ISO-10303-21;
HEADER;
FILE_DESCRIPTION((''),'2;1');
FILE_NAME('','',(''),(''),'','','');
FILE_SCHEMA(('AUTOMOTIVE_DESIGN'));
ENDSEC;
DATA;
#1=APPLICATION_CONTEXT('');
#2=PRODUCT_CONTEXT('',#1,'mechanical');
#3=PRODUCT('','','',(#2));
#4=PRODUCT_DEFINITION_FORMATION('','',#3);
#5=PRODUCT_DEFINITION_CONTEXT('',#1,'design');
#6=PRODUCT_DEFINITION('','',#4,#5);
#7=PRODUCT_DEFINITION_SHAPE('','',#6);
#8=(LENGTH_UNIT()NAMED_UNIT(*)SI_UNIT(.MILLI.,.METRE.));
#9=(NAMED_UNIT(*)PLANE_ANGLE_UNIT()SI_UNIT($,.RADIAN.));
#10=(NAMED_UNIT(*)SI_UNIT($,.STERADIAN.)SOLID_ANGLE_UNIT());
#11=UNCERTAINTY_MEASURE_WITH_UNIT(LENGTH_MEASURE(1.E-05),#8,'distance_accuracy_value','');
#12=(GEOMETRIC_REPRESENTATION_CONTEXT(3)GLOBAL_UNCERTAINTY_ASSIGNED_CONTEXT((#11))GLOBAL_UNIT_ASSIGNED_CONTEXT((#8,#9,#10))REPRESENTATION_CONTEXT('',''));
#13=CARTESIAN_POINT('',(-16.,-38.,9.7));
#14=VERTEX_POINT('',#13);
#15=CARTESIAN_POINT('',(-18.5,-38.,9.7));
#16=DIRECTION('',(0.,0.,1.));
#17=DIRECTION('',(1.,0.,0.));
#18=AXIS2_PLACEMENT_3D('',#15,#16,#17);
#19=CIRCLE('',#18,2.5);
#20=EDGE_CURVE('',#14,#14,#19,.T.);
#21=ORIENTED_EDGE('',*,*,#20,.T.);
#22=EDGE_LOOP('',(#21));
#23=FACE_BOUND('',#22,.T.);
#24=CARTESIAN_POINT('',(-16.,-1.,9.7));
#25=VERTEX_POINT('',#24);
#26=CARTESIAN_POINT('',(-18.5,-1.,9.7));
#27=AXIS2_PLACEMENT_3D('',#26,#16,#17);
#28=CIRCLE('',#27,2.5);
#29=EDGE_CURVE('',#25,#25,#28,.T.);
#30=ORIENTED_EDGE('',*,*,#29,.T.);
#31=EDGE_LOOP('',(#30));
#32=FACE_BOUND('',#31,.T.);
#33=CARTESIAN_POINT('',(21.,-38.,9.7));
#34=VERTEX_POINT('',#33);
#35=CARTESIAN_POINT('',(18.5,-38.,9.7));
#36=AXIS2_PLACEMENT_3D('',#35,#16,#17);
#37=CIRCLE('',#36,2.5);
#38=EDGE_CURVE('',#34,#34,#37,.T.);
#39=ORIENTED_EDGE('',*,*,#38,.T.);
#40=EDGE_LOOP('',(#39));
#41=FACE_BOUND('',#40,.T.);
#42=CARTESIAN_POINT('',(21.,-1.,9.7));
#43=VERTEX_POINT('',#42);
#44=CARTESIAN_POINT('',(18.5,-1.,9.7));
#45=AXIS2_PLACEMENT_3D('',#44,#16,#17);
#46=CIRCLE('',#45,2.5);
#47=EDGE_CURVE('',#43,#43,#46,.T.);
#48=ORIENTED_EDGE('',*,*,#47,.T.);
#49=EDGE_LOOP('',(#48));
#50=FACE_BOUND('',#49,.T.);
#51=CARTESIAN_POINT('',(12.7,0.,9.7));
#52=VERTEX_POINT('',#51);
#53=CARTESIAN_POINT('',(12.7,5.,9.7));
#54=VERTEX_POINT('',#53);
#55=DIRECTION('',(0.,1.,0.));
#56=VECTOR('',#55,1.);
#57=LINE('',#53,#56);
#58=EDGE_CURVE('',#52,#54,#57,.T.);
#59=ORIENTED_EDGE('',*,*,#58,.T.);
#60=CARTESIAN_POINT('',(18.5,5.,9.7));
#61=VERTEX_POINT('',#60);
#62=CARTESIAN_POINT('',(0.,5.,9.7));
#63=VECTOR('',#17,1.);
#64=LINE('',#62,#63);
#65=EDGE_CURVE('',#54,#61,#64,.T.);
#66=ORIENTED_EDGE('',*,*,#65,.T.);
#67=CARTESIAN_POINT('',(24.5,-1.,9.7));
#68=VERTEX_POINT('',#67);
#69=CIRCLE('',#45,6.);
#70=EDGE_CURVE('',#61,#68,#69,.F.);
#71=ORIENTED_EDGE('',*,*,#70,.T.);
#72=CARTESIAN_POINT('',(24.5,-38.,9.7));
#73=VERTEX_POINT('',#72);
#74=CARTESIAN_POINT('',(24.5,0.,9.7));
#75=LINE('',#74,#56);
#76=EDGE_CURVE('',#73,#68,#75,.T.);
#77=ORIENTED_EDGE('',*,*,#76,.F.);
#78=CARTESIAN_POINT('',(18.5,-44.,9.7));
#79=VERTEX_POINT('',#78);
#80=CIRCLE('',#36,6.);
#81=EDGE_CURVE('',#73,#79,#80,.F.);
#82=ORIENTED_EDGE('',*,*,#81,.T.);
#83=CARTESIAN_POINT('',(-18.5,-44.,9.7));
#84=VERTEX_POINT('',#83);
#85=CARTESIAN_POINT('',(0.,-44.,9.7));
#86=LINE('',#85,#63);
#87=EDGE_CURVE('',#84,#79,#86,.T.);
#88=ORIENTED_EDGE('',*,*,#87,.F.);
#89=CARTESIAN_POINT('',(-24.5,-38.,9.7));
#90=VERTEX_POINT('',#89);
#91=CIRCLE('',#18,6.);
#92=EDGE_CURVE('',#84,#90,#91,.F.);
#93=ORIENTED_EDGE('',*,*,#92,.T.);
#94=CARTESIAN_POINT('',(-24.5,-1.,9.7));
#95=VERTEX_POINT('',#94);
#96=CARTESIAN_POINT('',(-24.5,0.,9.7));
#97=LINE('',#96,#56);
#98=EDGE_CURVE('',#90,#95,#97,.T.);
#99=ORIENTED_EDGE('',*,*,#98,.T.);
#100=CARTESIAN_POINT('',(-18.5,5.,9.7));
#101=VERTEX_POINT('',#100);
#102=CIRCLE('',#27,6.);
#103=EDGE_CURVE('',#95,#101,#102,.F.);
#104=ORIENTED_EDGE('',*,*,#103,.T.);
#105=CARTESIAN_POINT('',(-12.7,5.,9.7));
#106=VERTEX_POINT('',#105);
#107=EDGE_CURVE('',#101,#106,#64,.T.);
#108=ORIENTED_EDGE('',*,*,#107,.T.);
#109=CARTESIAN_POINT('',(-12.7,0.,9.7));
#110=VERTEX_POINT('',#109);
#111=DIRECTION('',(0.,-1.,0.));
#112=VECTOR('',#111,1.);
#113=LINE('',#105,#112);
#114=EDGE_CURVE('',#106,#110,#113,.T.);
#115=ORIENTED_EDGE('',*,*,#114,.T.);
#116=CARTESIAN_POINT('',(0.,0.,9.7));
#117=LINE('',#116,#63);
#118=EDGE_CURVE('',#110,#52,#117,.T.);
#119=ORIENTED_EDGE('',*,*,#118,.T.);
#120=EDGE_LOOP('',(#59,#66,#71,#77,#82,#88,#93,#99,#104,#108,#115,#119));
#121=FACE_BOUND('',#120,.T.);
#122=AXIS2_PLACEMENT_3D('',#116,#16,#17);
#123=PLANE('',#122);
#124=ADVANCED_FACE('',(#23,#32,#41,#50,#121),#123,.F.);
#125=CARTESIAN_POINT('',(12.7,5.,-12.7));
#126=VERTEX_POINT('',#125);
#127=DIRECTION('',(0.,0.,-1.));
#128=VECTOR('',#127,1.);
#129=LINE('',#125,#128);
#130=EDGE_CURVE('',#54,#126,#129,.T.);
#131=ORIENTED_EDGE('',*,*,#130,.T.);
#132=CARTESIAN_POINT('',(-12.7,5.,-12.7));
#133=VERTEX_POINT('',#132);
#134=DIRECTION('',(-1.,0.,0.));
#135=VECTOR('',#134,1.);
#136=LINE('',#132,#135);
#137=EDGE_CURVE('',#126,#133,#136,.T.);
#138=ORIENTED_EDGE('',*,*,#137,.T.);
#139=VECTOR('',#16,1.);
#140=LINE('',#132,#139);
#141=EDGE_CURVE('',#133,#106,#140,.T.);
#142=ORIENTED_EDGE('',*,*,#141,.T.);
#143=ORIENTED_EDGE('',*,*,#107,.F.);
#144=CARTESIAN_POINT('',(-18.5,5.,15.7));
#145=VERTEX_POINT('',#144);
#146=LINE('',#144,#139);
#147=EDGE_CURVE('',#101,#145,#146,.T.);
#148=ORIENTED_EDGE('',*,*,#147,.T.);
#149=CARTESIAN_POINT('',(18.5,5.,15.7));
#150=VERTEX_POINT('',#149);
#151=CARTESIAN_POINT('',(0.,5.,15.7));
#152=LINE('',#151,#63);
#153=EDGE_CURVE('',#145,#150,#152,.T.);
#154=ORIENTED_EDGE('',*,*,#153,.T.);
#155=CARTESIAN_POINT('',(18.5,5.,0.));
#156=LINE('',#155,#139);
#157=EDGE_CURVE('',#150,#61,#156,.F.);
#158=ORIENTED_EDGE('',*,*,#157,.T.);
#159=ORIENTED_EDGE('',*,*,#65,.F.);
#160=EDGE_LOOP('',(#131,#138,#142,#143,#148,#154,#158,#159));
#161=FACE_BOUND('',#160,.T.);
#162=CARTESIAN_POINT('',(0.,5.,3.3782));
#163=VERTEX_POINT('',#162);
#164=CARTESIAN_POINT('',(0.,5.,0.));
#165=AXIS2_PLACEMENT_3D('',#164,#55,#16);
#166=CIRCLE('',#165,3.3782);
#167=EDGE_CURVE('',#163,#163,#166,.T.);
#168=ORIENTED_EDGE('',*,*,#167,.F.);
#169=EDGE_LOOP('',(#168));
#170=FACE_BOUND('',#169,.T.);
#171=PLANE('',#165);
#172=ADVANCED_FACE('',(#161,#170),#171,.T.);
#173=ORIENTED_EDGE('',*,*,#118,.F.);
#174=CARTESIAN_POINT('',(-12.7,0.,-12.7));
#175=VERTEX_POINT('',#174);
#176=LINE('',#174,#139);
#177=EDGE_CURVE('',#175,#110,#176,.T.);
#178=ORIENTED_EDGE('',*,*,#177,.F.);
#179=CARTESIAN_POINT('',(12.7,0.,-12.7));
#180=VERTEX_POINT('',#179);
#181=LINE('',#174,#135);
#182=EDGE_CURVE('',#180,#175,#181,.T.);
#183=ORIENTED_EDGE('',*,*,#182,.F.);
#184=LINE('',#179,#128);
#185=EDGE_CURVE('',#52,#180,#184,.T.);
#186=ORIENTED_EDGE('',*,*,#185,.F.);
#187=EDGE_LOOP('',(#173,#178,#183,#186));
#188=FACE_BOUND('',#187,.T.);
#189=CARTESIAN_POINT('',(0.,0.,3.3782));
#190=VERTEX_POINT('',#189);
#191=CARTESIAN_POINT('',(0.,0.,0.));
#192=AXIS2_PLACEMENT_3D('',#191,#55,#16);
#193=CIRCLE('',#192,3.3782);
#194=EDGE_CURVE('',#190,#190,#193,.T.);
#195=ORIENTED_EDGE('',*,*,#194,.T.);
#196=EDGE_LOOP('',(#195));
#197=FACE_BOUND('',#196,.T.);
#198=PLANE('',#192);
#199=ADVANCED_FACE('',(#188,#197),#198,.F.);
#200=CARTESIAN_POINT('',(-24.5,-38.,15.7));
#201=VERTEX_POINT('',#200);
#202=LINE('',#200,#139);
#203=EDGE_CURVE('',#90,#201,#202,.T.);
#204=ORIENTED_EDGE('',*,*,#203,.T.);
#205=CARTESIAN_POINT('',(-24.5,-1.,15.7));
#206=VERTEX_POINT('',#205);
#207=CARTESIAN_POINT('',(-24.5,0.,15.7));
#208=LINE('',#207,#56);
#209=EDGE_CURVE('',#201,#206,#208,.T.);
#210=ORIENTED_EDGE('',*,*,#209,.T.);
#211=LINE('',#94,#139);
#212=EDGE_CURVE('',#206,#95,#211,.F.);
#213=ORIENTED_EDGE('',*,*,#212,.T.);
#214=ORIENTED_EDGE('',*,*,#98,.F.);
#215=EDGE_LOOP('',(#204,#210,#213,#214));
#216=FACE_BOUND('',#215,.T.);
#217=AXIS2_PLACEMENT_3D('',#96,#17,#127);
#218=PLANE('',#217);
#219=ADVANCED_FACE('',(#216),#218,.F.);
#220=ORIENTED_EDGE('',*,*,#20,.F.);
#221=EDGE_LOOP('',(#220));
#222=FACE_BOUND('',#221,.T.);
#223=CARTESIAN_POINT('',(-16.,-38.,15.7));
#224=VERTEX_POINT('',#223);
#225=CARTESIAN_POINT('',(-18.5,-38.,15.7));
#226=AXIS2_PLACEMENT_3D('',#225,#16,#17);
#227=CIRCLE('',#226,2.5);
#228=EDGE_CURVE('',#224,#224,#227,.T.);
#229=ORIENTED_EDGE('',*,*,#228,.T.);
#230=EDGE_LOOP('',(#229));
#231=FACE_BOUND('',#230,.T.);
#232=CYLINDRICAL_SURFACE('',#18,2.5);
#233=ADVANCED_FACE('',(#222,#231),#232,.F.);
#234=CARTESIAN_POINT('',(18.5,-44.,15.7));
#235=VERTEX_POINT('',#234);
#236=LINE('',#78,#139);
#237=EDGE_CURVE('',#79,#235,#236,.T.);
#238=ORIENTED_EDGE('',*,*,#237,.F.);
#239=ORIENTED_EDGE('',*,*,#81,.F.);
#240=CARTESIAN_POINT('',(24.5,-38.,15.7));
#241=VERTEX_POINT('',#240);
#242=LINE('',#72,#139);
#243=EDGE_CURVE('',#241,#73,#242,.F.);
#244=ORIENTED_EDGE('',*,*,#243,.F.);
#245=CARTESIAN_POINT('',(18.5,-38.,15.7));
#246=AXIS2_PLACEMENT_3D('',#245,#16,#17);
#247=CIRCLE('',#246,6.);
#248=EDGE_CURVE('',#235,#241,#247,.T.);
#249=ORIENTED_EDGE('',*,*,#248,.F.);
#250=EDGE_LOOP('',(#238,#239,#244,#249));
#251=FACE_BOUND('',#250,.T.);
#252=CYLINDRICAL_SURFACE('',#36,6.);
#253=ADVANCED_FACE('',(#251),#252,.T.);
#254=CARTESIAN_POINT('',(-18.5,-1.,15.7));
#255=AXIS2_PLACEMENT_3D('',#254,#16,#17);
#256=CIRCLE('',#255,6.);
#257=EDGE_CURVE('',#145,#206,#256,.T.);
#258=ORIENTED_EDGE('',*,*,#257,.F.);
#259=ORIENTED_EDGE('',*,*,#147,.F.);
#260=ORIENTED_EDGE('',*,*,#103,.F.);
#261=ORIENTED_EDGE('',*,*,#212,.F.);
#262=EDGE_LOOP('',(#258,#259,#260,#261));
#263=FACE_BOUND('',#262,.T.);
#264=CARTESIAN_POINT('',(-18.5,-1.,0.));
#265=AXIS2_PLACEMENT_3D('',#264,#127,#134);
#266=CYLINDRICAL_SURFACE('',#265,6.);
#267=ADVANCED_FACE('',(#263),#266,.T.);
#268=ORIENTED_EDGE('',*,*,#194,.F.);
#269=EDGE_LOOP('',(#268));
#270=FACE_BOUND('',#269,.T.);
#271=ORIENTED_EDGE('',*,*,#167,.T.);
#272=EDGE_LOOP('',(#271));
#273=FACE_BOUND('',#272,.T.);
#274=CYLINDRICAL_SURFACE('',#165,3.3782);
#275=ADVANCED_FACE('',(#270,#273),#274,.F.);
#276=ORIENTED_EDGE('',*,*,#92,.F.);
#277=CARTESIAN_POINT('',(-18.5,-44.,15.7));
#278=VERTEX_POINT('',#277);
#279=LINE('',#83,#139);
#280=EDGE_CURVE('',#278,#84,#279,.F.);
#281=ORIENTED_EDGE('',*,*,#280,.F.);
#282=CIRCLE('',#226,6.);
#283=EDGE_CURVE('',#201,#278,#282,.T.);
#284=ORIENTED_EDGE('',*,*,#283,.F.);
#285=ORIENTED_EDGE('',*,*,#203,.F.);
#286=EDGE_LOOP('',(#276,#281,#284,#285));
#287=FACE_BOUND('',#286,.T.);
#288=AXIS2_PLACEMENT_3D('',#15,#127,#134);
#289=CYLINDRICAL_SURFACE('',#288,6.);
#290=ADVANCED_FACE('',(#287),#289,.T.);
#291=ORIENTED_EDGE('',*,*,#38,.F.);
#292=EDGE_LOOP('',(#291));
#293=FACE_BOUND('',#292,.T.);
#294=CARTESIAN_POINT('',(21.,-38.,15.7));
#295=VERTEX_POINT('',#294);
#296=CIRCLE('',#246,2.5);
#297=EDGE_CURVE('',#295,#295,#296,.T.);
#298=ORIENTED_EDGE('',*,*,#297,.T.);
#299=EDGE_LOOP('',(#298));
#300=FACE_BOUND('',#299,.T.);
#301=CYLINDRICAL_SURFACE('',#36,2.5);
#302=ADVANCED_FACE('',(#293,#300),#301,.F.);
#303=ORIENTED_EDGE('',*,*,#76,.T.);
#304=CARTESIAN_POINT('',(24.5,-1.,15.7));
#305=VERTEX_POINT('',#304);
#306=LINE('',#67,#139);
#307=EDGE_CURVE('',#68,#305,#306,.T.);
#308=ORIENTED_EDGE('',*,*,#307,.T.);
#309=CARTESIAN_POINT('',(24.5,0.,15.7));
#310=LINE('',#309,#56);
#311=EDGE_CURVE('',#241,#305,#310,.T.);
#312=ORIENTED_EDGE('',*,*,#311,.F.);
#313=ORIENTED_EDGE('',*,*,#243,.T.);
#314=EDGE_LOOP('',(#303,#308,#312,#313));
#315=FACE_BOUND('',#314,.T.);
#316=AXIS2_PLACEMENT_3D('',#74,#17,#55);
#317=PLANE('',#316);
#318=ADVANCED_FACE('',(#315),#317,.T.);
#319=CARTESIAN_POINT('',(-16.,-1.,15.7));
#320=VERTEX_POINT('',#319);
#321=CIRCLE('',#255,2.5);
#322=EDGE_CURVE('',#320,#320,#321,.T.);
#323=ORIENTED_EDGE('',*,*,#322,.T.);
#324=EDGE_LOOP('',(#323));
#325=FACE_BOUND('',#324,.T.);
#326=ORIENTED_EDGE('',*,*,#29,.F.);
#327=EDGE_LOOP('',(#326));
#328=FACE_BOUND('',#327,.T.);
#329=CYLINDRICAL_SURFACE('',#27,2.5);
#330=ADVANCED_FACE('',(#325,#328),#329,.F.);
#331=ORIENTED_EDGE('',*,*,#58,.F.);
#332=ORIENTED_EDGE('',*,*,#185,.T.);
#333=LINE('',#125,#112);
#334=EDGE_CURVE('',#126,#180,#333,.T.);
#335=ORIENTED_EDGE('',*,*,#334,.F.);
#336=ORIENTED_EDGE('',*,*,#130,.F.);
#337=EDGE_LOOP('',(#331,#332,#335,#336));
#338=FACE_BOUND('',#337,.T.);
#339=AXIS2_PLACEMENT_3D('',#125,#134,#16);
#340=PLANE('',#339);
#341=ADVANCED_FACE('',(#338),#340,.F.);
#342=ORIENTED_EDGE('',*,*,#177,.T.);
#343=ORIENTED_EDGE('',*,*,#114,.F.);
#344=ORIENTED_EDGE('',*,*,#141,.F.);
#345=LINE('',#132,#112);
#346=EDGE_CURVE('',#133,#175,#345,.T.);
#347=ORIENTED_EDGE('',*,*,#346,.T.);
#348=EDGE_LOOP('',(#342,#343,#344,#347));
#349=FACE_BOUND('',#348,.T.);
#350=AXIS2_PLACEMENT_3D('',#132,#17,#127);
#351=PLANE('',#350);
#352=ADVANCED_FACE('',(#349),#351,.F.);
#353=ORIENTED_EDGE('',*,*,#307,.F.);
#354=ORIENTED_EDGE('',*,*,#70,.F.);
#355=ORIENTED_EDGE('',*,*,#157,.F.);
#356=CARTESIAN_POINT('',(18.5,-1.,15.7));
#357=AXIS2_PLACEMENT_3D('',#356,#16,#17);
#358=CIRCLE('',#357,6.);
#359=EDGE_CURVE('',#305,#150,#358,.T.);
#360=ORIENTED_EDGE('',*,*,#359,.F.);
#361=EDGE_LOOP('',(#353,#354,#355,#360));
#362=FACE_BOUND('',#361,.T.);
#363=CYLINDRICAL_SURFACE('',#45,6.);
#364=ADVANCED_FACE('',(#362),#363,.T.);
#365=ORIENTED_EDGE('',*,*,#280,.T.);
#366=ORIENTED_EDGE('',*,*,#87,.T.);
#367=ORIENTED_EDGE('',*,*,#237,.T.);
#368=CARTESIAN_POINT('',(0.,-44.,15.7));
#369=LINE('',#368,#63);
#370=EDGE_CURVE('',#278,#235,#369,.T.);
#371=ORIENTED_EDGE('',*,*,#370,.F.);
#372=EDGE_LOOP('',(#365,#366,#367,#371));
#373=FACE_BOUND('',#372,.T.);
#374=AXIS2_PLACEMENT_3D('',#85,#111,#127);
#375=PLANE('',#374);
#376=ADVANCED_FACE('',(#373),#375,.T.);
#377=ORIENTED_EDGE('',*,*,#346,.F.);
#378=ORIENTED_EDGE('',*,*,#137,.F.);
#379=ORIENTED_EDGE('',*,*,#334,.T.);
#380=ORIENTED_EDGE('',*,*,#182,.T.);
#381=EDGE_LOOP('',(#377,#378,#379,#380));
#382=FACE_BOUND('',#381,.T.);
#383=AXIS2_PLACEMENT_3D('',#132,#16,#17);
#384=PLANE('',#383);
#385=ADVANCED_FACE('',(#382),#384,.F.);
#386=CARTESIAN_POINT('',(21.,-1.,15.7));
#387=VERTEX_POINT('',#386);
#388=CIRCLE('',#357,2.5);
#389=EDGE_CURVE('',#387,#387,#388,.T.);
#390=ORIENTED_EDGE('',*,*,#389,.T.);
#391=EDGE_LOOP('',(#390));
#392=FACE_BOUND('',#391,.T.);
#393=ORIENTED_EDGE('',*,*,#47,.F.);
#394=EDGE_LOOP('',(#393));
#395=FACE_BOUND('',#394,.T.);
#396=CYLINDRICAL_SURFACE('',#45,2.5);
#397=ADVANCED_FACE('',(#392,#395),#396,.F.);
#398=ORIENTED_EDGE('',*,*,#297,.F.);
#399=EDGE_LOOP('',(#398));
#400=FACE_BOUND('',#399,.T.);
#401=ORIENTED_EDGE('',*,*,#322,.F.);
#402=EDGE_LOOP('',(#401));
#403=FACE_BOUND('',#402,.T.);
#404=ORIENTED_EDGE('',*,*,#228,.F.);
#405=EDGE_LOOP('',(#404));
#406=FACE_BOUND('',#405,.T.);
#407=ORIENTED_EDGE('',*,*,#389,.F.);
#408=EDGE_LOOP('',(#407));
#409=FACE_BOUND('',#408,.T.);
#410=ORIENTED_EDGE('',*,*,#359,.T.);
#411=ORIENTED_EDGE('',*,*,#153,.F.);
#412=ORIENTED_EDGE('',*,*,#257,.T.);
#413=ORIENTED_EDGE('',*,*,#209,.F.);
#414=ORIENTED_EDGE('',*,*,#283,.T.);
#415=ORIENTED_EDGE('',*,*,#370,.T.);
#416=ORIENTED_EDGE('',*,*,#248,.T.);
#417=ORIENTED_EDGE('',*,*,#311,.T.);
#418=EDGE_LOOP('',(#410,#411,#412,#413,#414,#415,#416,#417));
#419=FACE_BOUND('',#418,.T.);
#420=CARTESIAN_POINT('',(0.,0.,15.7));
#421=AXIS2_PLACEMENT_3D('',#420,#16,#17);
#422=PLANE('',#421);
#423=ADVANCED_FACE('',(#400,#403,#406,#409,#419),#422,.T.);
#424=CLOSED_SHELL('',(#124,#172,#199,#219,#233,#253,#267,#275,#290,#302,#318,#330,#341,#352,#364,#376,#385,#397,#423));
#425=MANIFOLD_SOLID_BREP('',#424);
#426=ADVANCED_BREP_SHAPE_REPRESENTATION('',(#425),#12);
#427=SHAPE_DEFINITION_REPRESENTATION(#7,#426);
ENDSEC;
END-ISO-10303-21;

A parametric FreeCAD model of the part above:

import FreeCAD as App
import Part
import Sketcher
from FreeCAD import Vector


def edges_at(feature, points):
    """Names of the edges that pass closest to the given points."""
    edges = feature.Shape.Edges
    near = lambda p: min(range(len(edges)), key=lambda i: edges[i].distToShape(Part.Vertex(*p))[0])
    return sorted({f"Edge{near(p) + 1}" for p in points})


def add_polygon(sketch, points):
    """Adds a closed chain of lines whose ends are joined by coincident constraints."""
    first, n = sketch.GeometryCount, len(points)
    for a, b in zip(points, points[1:] + points[:1]):
        sketch.addGeometry(Part.LineSegment(App.Vector(*a, 0), App.Vector(*b, 0)), False)
    for i in range(n):
        sketch.addConstraint(Sketcher.Constraint("Coincident", first + i, 2, first + (i + 1) % n, 1))

doc = App.newDocument("Part")
params = doc.addObject("Spreadsheet::Sheet", "Params")
for row, (alias, value) in enumerate([
    ("sketch1_width", "25.4 mm"),
    ("pad1_length", "5 mm"),
    ("hole_diameter", "6.7564 mm"),
    ("sketch3_diameter", "5 mm"),
    ("sketch3_width", "49 mm"),
    ("pad2_length", "6 mm"),
    ("fillet_radius", "6 mm"),
], start=1):
    params.set(f"A{row}", alias)
    params.set(f"B{row}", "=" + value)
    params.setAlias(f"B{row}", alias)

body = doc.addObject("PartDesign::Body", "Body")

sketch1 = body.newObject("Sketcher::SketchObject", "Sketch")
sketch1.AttachmentSupport = (doc.getObject("XZ_Plane"), [""])
sketch1.MapMode = "FlatFace"
add_polygon(sketch1, [(-13, -13), (-13, 13), (13, 13), (13, -13)])
sketch1.addConstraint([
    Sketcher.Constraint("Vertical", 0),
    Sketcher.Constraint("Horizontal", 1),
    Sketcher.Constraint("Vertical", 2),
    Sketcher.Constraint("Horizontal", 3),
    Sketcher.Constraint("Symmetric", 0, 2, 2, 2, -1, 1),
    Sketcher.Constraint("Equal", 3, 0),
    Sketcher.Constraint("DistanceX", 1, 1, 1, 2, 25.4),
])
sketch1.setExpression("Constraints[10]", "Params.sketch1_width")
pad1 = body.newObject("PartDesign::Pad", "Pad")
pad1.Profile = sketch1
pad1.setExpression("Length", "Params.pad1_length")
pad1.Reversed = True

sketch2 = body.newObject("Sketcher::SketchObject", "Sketch001")
sketch2.AttachmentSupport = (doc.getObject("XZ_Plane"), [""])
sketch2.MapMode = "FlatFace"
sketch2.AttachmentOffset = App.Placement(Vector(0, 0, -5), App.Rotation())
sketch2.addGeometry(Part.Circle(Vector(0, 0, 0), Vector(0, 0, 1), 3.4), False)
sketch2.addConstraint([
    Sketcher.Constraint("Coincident", 0, 3, -1, 1),
    Sketcher.Constraint("Diameter", 0, 6.7564),
])
doc.recompute()
hole = body.newObject("PartDesign::Hole", "Hole")
hole.Profile = sketch2
hole.ThreadType = "None"
hole.setExpression("Diameter", "Params.hole_diameter")
hole.DepthType = "ThroughAll"
hole.Reversed = True

sketch3 = body.newObject("Sketcher::SketchObject", "Sketch002")
sketch3.AttachmentSupport = (doc.getObject("XY_Plane"), [""])
sketch3.MapMode = "FlatFace"
sketch3.AttachmentOffset = App.Placement(Vector(0, 0, 12.7), App.Rotation())
add_polygon(sketch3, [(-24.5, 5), (-24.5, -44), (24.5, -44), (24.5, 5)])
sketch3.addGeometry(Part.Circle(Vector(-18.5, -38, 0), Vector(0, 0, 1), 2.5), False)
sketch3.addGeometry(Part.Circle(Vector(18.5, -38, 0), Vector(0, 0, 1), 2.5), False)
sketch3.addGeometry(Part.Circle(Vector(-18.5, -1, 0), Vector(0, 0, 1), 2.5), False)
sketch3.addGeometry(Part.Circle(Vector(18.5, -1, 0), Vector(0, 0, 1), 2.5), False)
sketch3.addConstraint([
    Sketcher.Constraint("Vertical", 0),
    Sketcher.Constraint("Horizontal", 1),
    Sketcher.Constraint("Vertical", 2),
    Sketcher.Constraint("Horizontal", 3),
    Sketcher.Constraint("Equal", 4, 5),
    Sketcher.Constraint("Equal", 5, 6),
    Sketcher.Constraint("Equal", 6, 7),
    Sketcher.Constraint("Symmetric", 4, 3, 5, 3, -2),
    Sketcher.Constraint("Symmetric", 6, 3, 7, 3, -2),
    Sketcher.Constraint("Vertical", 4, 3, 6, 3),
    Sketcher.Constraint("Equal", 3, 0),
    Sketcher.Constraint("Diameter", 4, 5.0),
    Sketcher.Constraint("DistanceX", 1, 1, 1, 2, 49.0),
    Sketcher.Constraint("DistanceY", 4, 3, -1, 1, 38.0),
    Sketcher.Constraint("DistanceY", 6, 3, -1, 1, 1.0),
    Sketcher.Constraint("DistanceY", 0, 2, -1, 1, 44.0),
    Sketcher.Constraint("DistanceX", 4, 3, 5, 3, 37.0),
    Sketcher.Constraint("DistanceX", 0, 2, 4, 3, 6.0),
])
sketch3.setExpression("Constraints[15]", "Params.sketch3_diameter")
sketch3.setExpression("Constraints[16]", "Params.sketch3_width")
pad2 = body.newObject("PartDesign::Pad", "Pad001")
pad2.Profile = sketch3
pad2.setExpression("Length", "Params.pad2_length")
pad2.Midplane = True
doc.recompute()

fillet = body.newObject("PartDesign::Fillet", "Fillet")
fillet.Base = (pad2, edges_at(pad2, [
    (-24.5, 5, 12.7),
    (24.5, 5, 12.7),
    (24.5, -44, 12.7),
    (-24.5, -44, 12.7),
]))
fillet.setExpression("Radius", "Params.fillet_radius")

doc.recompute()
